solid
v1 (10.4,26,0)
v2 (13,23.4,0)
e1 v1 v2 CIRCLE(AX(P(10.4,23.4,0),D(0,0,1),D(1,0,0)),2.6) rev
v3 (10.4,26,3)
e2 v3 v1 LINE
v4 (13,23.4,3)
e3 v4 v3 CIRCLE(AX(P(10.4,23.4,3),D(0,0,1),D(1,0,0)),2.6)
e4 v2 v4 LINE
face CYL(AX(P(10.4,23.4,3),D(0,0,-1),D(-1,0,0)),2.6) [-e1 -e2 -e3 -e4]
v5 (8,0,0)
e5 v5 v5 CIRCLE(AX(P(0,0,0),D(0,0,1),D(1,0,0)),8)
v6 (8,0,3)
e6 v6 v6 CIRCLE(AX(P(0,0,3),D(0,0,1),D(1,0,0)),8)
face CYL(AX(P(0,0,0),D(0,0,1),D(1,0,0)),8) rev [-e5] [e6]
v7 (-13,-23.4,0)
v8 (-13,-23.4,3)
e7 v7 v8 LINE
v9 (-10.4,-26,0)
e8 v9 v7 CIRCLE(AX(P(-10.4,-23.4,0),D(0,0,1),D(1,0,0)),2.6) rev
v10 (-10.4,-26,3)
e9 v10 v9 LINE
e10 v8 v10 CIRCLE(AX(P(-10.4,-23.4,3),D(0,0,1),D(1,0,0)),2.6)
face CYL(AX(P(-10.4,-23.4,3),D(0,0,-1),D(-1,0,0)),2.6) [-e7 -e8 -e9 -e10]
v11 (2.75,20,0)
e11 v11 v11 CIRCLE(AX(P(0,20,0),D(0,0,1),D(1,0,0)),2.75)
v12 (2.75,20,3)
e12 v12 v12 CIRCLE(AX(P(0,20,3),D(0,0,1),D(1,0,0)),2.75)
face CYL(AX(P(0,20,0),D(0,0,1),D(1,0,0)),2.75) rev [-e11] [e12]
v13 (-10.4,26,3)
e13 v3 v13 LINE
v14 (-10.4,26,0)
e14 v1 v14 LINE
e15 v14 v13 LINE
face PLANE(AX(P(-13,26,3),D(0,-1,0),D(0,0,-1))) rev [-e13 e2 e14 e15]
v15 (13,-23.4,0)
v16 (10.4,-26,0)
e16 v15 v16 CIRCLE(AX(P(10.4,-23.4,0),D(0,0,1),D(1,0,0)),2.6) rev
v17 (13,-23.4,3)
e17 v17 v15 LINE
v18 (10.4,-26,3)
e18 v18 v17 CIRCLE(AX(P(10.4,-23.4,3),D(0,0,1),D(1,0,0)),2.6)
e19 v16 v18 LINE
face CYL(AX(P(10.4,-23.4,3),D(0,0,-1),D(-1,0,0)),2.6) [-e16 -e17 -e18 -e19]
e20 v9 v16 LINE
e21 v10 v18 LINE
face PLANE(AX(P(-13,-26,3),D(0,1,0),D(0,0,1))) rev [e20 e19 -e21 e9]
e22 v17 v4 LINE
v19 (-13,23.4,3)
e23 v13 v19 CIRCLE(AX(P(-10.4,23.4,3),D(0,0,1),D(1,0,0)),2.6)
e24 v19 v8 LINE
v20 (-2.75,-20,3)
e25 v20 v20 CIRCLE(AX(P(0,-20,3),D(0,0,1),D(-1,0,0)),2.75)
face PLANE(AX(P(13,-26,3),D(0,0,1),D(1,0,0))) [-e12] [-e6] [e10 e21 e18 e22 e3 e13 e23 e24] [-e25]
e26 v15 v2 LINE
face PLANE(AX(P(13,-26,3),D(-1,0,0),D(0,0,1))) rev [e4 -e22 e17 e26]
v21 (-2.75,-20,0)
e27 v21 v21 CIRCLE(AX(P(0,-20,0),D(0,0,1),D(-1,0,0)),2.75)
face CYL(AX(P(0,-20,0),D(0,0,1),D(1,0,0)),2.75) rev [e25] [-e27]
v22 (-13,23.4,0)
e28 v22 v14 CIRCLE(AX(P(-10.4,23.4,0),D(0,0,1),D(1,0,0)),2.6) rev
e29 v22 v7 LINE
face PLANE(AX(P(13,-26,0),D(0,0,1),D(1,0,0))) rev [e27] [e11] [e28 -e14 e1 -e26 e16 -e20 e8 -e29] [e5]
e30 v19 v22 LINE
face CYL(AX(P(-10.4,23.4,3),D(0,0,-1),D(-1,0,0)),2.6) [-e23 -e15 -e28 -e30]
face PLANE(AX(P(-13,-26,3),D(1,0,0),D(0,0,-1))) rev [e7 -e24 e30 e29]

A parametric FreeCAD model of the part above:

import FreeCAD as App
import Part
import Sketcher


def edges_at(feature, points):
    """Names of the edges that pass closest to the given points."""
    edges = feature.Shape.Edges
    near = lambda p: min(range(len(edges)), key=lambda i: edges[i].distToShape(Part.Vertex(*p))[0])
    return sorted({f"Edge{near(p) + 1}" for p in points})

doc = App.newDocument("Part")
body = doc.addObject("PartDesign::Body", "Body")

sketch1 = body.newObject("Sketcher::SketchObject", "Sketch")
sketch1.AttachmentSupport = (doc.getObject("XY_Plane"), [""])
sketch1.MapMode = "FlatFace"
sketch1.addGeometry(Part.LineSegment(App.Vector(-13, 26, 0), App.Vector(-13, -26, 0)), False)
sketch1.addGeometry(Part.LineSegment(App.Vector(-13, -26, 0), App.Vector(13, -26, 0)), False)
sketch1.addGeometry(Part.LineSegment(App.Vector(13, -26, 0), App.Vector(13, 26, 0)), False)
sketch1.addGeometry(Part.LineSegment(App.Vector(13, 26, 0), App.Vector(-13, 26, 0)), False)
sketch1.addConstraint(Sketcher.Constraint("Coincident", 0, 2, 1, 1))
sketch1.addConstraint(Sketcher.Constraint("Coincident", 1, 2, 2, 1))
sketch1.addConstraint(Sketcher.Constraint("Coincident", 2, 2, 3, 1))
sketch1.addConstraint(Sketcher.Constraint("Coincident", 3, 2, 0, 1))
sketch1.addConstraint(Sketcher.Constraint("Vertical", 0))
sketch1.addConstraint(Sketcher.Constraint("Horizontal", 1))
sketch1.addConstraint(Sketcher.Constraint("Vertical", 2))
sketch1.addConstraint(Sketcher.Constraint("Horizontal", 3))
sketch1.addConstraint(Sketcher.Constraint("Symmetric", 0, 2, 2, 2, -1, 1))
sketch1.addConstraint(Sketcher.Constraint("DistanceX", 1, 1, 1, 2, 26.0))
sketch1.addConstraint(Sketcher.Constraint("DistanceY", 0, 2, 0, 1, 52.0))
pad1 = body.newObject("PartDesign::Pad", "Pad")
pad1.Profile = sketch1
pad1.Length = 3

sketch2 = body.newObject("Sketcher::SketchObject", "Sketch001")
sketch2.AttachmentSupport = (doc.getObject("XY_Plane"), [""])
sketch2.MapMode = "FlatFace"
sketch2.AttachmentOffset = App.Placement(App.Vector(0, 0, 3), App.Rotation())
sketch2.addGeometry(Part.Circle(App.Vector(0, 0, 0), App.Vector(0, 0, 1), 8), False)
sketch2.addConstraint(Sketcher.Constraint("Coincident", 0, 3, -1, 1))
sketch2.addConstraint(Sketcher.Constraint("Diameter", 0, 16.0))
pocket1 = body.newObject("PartDesign::Pocket", "Pocket")
pocket1.Profile = sketch2
pocket1.Type = "ThroughAll"
doc.recompute()

fillet = body.newObject("PartDesign::Fillet", "Fillet")
fillet.Base = (pocket1, edges_at(pocket1, [
    (-13, -26, 1.5),
    (-13, 26, 1.5),
    (13, 26, 1.5),
    (13, -26, 1.5),
]))
fillet.Radius = 2.6

sketch3 = body.newObject("Sketcher::SketchObject", "Sketch002")
sketch3.AttachmentSupport = (doc.getObject("XY_Plane"), [""])
sketch3.MapMode = "FlatFace"
sketch3.AttachmentOffset = App.Placement(App.Vector(0, 0, 3), App.Rotation())
sketch3.addGeometry(Part.Circle(App.Vector(0, 20, 0), App.Vector(0, 0, 1), 2.8), False)
sketch3.addGeometry(Part.Circle(App.Vector(0, -20, 0), App.Vector(0, 0, 1), 2.8), False)
sketch3.addConstraint(Sketcher.Constraint("Equal", 0, 1))
sketch3.addConstraint(Sketcher.Constraint("Symmetric", 0, 3, 1, 3, -1, 1))
sketch3.addConstraint(Sketcher.Constraint("PointOnObject", 0, 3, -2))
sketch3.addConstraint(Sketcher.Constraint("Diameter", 0, 5.5))
sketch3.addConstraint(Sketcher.Constraint("DistanceY", -1, 1, 0, 3, 20.0))
pocket2 = body.newObject("PartDesign::Pocket", "Pocket001")
pocket2.Profile = sketch3
pocket2.Type = "ThroughAll"

doc.recompute()
